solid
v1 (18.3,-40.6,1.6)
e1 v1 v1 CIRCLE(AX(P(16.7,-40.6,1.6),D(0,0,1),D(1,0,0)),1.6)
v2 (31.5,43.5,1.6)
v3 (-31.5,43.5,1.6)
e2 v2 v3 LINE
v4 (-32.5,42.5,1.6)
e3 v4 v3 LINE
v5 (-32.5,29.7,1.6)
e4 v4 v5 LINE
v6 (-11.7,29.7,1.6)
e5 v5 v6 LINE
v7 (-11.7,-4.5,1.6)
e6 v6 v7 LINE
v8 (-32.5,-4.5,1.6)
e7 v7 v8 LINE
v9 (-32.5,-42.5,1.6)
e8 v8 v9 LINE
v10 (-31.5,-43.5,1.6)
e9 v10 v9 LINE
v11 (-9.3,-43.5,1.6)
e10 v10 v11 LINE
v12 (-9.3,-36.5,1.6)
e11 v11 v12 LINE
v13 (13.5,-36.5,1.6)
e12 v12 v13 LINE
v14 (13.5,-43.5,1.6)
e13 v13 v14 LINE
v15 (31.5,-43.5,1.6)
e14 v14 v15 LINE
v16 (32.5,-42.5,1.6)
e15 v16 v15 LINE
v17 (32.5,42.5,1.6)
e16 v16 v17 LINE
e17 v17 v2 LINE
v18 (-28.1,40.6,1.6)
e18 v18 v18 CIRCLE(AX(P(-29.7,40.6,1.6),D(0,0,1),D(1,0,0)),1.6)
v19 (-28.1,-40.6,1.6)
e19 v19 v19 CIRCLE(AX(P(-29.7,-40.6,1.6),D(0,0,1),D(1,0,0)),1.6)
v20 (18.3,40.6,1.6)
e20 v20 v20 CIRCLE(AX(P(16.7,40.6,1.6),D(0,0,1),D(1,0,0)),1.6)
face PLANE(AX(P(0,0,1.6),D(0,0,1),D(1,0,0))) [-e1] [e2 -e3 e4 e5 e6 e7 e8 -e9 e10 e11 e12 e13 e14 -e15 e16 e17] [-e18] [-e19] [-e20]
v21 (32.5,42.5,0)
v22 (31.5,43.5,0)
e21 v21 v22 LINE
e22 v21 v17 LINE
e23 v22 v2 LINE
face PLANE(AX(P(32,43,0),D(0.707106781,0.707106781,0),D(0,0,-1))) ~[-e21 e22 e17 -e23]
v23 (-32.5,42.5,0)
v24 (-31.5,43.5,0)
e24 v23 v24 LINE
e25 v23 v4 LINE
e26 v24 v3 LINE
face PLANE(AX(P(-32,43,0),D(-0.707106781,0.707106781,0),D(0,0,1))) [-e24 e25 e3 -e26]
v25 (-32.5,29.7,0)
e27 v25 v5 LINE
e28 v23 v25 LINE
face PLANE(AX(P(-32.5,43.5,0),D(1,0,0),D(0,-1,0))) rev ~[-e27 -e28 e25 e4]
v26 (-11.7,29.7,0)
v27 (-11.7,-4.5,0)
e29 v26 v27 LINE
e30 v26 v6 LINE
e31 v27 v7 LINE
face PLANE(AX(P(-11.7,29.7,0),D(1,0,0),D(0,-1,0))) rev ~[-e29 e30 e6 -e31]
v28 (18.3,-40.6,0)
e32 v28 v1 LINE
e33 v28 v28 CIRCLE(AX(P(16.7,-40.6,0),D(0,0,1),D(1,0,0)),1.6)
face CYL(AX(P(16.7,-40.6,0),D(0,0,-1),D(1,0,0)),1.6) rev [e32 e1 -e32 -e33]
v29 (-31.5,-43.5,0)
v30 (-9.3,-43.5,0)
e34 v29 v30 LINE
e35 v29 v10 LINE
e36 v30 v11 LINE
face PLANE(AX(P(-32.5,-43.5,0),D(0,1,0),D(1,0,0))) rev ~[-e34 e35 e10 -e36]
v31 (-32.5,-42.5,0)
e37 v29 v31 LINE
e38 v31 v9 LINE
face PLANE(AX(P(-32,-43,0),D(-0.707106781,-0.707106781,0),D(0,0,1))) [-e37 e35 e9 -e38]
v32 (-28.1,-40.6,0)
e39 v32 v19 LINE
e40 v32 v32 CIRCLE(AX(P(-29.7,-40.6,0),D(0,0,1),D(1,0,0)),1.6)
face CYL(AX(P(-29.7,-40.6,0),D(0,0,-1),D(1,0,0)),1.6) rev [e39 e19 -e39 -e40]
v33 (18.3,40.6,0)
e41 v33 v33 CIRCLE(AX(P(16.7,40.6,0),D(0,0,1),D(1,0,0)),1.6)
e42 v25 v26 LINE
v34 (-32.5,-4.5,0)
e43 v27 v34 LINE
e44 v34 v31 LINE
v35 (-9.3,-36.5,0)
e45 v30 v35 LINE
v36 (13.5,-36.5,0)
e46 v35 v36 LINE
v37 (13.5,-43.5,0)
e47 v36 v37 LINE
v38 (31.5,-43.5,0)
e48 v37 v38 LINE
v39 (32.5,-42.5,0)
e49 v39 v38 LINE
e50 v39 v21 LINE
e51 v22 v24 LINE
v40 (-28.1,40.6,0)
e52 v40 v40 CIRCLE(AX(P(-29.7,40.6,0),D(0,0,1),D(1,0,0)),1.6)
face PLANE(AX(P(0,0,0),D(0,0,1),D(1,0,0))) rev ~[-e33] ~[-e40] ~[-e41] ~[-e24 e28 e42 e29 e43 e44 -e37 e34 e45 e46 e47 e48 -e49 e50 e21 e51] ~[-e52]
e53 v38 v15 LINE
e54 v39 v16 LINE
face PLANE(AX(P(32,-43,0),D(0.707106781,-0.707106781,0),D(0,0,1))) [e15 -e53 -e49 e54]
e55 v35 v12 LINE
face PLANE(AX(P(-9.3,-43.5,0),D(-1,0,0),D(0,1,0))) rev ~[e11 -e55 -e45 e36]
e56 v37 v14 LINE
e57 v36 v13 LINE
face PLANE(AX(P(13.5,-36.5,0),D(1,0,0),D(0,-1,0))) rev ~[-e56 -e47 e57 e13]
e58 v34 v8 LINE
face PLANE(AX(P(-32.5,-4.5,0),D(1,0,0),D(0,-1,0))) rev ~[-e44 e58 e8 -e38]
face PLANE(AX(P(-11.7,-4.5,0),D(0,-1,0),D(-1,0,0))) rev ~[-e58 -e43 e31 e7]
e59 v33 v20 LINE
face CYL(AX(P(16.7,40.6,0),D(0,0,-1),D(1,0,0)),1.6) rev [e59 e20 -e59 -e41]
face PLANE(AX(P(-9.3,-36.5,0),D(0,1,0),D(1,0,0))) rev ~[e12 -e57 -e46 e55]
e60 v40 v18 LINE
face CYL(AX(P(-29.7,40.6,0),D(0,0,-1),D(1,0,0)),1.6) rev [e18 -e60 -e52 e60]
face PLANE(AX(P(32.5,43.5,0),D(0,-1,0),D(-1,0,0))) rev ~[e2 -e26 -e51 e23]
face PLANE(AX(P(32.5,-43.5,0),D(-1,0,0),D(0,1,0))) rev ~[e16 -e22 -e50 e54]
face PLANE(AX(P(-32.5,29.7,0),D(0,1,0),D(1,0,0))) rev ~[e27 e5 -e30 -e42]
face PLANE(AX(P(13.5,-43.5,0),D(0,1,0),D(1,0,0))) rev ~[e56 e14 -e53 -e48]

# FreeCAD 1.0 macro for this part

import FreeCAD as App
import Part
import Sketcher
from FreeCAD import Vector


def edges_at(feature, points):
    """Names of the edges that pass closest to the given points."""
    edges = feature.Shape.Edges
    near = lambda p: min(range(len(edges)), key=lambda i: edges[i].distToShape(Part.Vertex(*p))[0])
    return sorted({f"Edge{near(p) + 1}" for p in points})

doc = App.newDocument("Part")
body = doc.addObject("PartDesign::Body", "Body")

sketch1 = body.newObject("Sketcher::SketchObject", "Sketch")
sketch1.AttachmentSupport = (doc.getObject("XY_Plane"), [""])
sketch1.MapMode = "FlatFace"
sketch1.addGeometry(Part.LineSegment(Vector(32.5, -43.5, 0), Vector(32.5, 43.5, 0)), False)
sketch1.addGeometry(Part.LineSegment(Vector(32.5, 43.5, 0), Vector(-32.5, 43.5, 0)), False)
sketch1.addGeometry(Part.LineSegment(Vector(-32.5, 43.5, 0), Vector(-32.5, 29.7, 0)), False)
sketch1.addGeometry(Part.LineSegment(Vector(-32.5, 29.7, 0), Vector(-11.7, 29.7, 0)), False)
sketch1.addGeometry(Part.LineSegment(Vector(-11.7, 29.7, 0), Vector(-11.7, -4.5, 0)), False)
sketch1.addGeometry(Part.LineSegment(Vector(-11.7, -4.5, 0), Vector(-32.5, -4.5, 0)), False)
sketch1.addGeometry(Part.LineSegment(Vector(-32.5, -4.5, 0), Vector(-32.5, -43.5, 0)), False)
sketch1.addGeometry(Part.LineSegment(Vector(-32.5, -43.5, 0), Vector(-9.3, -43.5, 0)), False)
sketch1.addGeometry(Part.LineSegment(Vector(-9.3, -43.5, 0), Vector(-9.3, -36.5, 0)), False)
sketch1.addGeometry(Part.LineSegment(Vector(-9.3, -36.5, 0), Vector(13.5, -36.5, 0)), False)
sketch1.addGeometry(Part.LineSegment(Vector(13.5, -36.5, 0), Vector(13.5, -43.5, 0)), False)
sketch1.addGeometry(Part.LineSegment(Vector(13.5, -43.5, 0), Vector(32.5, -43.5, 0)), False)
sketch1.addGeometry(Part.Circle(Vector(-29.7, -40.6, 0), Vector(0, 0, 1), 1.6), False)
sketch1.addGeometry(Part.Circle(Vector(16.7, -40.6, 0), Vector(0, 0, 1), 1.6), False)
sketch1.addGeometry(Part.Circle(Vector(-29.7, 40.6, 0), Vector(0, 0, 1), 1.6), False)
sketch1.addGeometry(Part.Circle(Vector(16.7, 40.6, 0), Vector(0, 0, 1), 1.6), False)
sketch1.addConstraint(Sketcher.Constraint("Coincident", 0, 2, 1, 1))
sketch1.addConstraint(Sketcher.Constraint("Coincident", 1, 2, 2, 1))
sketch1.addConstraint(Sketcher.Constraint("Coincident", 2, 2, 3, 1))
sketch1.addConstraint(Sketcher.Constraint("Coincident", 3, 2, 4, 1))
sketch1.addConstraint(Sketcher.Constraint("Coincident", 4, 2, 5, 1))
sketch1.addConstraint(Sketcher.Constraint("Coincident", 5, 2, 6, 1))
sketch1.addConstraint(Sketcher.Constraint("Coincident", 6, 2, 7, 1))
sketch1.addConstraint(Sketcher.Constraint("Coincident", 7, 2, 8, 1))
sketch1.addConstraint(Sketcher.Constraint("Coincident", 8, 2, 9, 1))
sketch1.addConstraint(Sketcher.Constraint("Coincident", 9, 2, 10, 1))
sketch1.addConstraint(Sketcher.Constraint("Coincident", 10, 2, 11, 1))
sketch1.addConstraint(Sketcher.Constraint("Coincident", 11, 2, 0, 1))
sketch1.addConstraint(Sketcher.Constraint("Vertical", 0))
sketch1.addConstraint(Sketcher.Constraint("Horizontal", 1))
sketch1.addConstraint(Sketcher.Constraint("Vertical", 2))
sketch1.addConstraint(Sketcher.Constraint("Horizontal", 3))
sketch1.addConstraint(Sketcher.Constraint("Vertical", 4))
sketch1.addConstraint(Sketcher.Constraint("Horizontal", 5))
sketch1.addConstraint(Sketcher.Constraint("Vertical", 6))
sketch1.addConstraint(Sketcher.Constraint("Horizontal", 7))
sketch1.addConstraint(Sketcher.Constraint("Vertical", 8))
sketch1.addConstraint(Sketcher.Constraint("Horizontal", 9))
sketch1.addConstraint(Sketcher.Constraint("Vertical", 10))
sketch1.addConstraint(Sketcher.Constraint("Horizontal", 11))
sketch1.addConstraint(Sketcher.Constraint("Equal", 12, 13))
sketch1.addConstraint(Sketcher.Constraint("Equal", 13, 14))
sketch1.addConstraint(Sketcher.Constraint("Equal", 14, 15))
sketch1.addConstraint(Sketcher.Constraint("Symmetric", 0, 2, 6, 2, -1, 1))
sketch1.addConstraint(Sketcher.Constraint("Symmetric", 1, 2, 11, 2, -1, 1))
sketch1.addConstraint(Sketcher.Constraint("Symmetric", 12, 3, 14, 3, -1))
sketch1.addConstraint(Sketcher.Constraint("Symmetric", 13, 3, 15, 3, -1))
sketch1.addConstraint(Sketcher.Constraint("Horizontal", 12, 3, 13, 3))
sketch1.addConstraint(Sketcher.Constraint("Diameter", 12, 3.2))
sketch1.addConstraint(Sketcher.Constraint("DistanceX", 1, 2, 1, 1, 65.0))
sketch1.addConstraint(Sketcher.Constraint("DistanceX", 11, 1, 11, 2, 19.0))
sketch1.addConstraint(Sketcher.Constraint("DistanceY", 0, 1, 0, 2, 87.0))
sketch1.addConstraint(Sketcher.Constraint("DistanceY", 6, 2, 6, 1, 39.0))
sketch1.addConstraint(Sketcher.Constraint("DistanceY", 8, 1, 8, 2, 7.0))
sketch1.addConstraint(Sketcher.Constraint("DistanceX", 3, 1, 3, 2, 20.8))
sketch1.addConstraint(Sketcher.Constraint("DistanceX", 7, 1, 7, 2, 23.2))
sketch1.addConstraint(Sketcher.Constraint("DistanceY", 2, 2, 2, 1, 13.8))
sketch1.addConstraint(Sketcher.Constraint("DistanceX", 12, 3, 13, 3, 46.4))
sketch1.addConstraint(Sketcher.Constraint("DistanceY", 12, 3, 14, 3, 81.2))
sketch1.addConstraint(Sketcher.Constraint("DistanceX", 1, 2, 14, 3, 2.8))
pad1 = body.newObject("PartDesign::Pad", "Pad")
pad1.Profile = sketch1
pad1.Length = 1.6
doc.recompute()

chamfer = body.newObject("PartDesign::Chamfer", "Chamfer")
chamfer.Base = (pad1, edges_at(pad1, [
    (32.5, -43.5, 0.8),
    (-32.5, -43.5, 0.8),
    (32.5, 43.5, 0.8),
    (-32.5, 43.5, 0.8),
]))
chamfer.Size = 1

doc.recompute()
